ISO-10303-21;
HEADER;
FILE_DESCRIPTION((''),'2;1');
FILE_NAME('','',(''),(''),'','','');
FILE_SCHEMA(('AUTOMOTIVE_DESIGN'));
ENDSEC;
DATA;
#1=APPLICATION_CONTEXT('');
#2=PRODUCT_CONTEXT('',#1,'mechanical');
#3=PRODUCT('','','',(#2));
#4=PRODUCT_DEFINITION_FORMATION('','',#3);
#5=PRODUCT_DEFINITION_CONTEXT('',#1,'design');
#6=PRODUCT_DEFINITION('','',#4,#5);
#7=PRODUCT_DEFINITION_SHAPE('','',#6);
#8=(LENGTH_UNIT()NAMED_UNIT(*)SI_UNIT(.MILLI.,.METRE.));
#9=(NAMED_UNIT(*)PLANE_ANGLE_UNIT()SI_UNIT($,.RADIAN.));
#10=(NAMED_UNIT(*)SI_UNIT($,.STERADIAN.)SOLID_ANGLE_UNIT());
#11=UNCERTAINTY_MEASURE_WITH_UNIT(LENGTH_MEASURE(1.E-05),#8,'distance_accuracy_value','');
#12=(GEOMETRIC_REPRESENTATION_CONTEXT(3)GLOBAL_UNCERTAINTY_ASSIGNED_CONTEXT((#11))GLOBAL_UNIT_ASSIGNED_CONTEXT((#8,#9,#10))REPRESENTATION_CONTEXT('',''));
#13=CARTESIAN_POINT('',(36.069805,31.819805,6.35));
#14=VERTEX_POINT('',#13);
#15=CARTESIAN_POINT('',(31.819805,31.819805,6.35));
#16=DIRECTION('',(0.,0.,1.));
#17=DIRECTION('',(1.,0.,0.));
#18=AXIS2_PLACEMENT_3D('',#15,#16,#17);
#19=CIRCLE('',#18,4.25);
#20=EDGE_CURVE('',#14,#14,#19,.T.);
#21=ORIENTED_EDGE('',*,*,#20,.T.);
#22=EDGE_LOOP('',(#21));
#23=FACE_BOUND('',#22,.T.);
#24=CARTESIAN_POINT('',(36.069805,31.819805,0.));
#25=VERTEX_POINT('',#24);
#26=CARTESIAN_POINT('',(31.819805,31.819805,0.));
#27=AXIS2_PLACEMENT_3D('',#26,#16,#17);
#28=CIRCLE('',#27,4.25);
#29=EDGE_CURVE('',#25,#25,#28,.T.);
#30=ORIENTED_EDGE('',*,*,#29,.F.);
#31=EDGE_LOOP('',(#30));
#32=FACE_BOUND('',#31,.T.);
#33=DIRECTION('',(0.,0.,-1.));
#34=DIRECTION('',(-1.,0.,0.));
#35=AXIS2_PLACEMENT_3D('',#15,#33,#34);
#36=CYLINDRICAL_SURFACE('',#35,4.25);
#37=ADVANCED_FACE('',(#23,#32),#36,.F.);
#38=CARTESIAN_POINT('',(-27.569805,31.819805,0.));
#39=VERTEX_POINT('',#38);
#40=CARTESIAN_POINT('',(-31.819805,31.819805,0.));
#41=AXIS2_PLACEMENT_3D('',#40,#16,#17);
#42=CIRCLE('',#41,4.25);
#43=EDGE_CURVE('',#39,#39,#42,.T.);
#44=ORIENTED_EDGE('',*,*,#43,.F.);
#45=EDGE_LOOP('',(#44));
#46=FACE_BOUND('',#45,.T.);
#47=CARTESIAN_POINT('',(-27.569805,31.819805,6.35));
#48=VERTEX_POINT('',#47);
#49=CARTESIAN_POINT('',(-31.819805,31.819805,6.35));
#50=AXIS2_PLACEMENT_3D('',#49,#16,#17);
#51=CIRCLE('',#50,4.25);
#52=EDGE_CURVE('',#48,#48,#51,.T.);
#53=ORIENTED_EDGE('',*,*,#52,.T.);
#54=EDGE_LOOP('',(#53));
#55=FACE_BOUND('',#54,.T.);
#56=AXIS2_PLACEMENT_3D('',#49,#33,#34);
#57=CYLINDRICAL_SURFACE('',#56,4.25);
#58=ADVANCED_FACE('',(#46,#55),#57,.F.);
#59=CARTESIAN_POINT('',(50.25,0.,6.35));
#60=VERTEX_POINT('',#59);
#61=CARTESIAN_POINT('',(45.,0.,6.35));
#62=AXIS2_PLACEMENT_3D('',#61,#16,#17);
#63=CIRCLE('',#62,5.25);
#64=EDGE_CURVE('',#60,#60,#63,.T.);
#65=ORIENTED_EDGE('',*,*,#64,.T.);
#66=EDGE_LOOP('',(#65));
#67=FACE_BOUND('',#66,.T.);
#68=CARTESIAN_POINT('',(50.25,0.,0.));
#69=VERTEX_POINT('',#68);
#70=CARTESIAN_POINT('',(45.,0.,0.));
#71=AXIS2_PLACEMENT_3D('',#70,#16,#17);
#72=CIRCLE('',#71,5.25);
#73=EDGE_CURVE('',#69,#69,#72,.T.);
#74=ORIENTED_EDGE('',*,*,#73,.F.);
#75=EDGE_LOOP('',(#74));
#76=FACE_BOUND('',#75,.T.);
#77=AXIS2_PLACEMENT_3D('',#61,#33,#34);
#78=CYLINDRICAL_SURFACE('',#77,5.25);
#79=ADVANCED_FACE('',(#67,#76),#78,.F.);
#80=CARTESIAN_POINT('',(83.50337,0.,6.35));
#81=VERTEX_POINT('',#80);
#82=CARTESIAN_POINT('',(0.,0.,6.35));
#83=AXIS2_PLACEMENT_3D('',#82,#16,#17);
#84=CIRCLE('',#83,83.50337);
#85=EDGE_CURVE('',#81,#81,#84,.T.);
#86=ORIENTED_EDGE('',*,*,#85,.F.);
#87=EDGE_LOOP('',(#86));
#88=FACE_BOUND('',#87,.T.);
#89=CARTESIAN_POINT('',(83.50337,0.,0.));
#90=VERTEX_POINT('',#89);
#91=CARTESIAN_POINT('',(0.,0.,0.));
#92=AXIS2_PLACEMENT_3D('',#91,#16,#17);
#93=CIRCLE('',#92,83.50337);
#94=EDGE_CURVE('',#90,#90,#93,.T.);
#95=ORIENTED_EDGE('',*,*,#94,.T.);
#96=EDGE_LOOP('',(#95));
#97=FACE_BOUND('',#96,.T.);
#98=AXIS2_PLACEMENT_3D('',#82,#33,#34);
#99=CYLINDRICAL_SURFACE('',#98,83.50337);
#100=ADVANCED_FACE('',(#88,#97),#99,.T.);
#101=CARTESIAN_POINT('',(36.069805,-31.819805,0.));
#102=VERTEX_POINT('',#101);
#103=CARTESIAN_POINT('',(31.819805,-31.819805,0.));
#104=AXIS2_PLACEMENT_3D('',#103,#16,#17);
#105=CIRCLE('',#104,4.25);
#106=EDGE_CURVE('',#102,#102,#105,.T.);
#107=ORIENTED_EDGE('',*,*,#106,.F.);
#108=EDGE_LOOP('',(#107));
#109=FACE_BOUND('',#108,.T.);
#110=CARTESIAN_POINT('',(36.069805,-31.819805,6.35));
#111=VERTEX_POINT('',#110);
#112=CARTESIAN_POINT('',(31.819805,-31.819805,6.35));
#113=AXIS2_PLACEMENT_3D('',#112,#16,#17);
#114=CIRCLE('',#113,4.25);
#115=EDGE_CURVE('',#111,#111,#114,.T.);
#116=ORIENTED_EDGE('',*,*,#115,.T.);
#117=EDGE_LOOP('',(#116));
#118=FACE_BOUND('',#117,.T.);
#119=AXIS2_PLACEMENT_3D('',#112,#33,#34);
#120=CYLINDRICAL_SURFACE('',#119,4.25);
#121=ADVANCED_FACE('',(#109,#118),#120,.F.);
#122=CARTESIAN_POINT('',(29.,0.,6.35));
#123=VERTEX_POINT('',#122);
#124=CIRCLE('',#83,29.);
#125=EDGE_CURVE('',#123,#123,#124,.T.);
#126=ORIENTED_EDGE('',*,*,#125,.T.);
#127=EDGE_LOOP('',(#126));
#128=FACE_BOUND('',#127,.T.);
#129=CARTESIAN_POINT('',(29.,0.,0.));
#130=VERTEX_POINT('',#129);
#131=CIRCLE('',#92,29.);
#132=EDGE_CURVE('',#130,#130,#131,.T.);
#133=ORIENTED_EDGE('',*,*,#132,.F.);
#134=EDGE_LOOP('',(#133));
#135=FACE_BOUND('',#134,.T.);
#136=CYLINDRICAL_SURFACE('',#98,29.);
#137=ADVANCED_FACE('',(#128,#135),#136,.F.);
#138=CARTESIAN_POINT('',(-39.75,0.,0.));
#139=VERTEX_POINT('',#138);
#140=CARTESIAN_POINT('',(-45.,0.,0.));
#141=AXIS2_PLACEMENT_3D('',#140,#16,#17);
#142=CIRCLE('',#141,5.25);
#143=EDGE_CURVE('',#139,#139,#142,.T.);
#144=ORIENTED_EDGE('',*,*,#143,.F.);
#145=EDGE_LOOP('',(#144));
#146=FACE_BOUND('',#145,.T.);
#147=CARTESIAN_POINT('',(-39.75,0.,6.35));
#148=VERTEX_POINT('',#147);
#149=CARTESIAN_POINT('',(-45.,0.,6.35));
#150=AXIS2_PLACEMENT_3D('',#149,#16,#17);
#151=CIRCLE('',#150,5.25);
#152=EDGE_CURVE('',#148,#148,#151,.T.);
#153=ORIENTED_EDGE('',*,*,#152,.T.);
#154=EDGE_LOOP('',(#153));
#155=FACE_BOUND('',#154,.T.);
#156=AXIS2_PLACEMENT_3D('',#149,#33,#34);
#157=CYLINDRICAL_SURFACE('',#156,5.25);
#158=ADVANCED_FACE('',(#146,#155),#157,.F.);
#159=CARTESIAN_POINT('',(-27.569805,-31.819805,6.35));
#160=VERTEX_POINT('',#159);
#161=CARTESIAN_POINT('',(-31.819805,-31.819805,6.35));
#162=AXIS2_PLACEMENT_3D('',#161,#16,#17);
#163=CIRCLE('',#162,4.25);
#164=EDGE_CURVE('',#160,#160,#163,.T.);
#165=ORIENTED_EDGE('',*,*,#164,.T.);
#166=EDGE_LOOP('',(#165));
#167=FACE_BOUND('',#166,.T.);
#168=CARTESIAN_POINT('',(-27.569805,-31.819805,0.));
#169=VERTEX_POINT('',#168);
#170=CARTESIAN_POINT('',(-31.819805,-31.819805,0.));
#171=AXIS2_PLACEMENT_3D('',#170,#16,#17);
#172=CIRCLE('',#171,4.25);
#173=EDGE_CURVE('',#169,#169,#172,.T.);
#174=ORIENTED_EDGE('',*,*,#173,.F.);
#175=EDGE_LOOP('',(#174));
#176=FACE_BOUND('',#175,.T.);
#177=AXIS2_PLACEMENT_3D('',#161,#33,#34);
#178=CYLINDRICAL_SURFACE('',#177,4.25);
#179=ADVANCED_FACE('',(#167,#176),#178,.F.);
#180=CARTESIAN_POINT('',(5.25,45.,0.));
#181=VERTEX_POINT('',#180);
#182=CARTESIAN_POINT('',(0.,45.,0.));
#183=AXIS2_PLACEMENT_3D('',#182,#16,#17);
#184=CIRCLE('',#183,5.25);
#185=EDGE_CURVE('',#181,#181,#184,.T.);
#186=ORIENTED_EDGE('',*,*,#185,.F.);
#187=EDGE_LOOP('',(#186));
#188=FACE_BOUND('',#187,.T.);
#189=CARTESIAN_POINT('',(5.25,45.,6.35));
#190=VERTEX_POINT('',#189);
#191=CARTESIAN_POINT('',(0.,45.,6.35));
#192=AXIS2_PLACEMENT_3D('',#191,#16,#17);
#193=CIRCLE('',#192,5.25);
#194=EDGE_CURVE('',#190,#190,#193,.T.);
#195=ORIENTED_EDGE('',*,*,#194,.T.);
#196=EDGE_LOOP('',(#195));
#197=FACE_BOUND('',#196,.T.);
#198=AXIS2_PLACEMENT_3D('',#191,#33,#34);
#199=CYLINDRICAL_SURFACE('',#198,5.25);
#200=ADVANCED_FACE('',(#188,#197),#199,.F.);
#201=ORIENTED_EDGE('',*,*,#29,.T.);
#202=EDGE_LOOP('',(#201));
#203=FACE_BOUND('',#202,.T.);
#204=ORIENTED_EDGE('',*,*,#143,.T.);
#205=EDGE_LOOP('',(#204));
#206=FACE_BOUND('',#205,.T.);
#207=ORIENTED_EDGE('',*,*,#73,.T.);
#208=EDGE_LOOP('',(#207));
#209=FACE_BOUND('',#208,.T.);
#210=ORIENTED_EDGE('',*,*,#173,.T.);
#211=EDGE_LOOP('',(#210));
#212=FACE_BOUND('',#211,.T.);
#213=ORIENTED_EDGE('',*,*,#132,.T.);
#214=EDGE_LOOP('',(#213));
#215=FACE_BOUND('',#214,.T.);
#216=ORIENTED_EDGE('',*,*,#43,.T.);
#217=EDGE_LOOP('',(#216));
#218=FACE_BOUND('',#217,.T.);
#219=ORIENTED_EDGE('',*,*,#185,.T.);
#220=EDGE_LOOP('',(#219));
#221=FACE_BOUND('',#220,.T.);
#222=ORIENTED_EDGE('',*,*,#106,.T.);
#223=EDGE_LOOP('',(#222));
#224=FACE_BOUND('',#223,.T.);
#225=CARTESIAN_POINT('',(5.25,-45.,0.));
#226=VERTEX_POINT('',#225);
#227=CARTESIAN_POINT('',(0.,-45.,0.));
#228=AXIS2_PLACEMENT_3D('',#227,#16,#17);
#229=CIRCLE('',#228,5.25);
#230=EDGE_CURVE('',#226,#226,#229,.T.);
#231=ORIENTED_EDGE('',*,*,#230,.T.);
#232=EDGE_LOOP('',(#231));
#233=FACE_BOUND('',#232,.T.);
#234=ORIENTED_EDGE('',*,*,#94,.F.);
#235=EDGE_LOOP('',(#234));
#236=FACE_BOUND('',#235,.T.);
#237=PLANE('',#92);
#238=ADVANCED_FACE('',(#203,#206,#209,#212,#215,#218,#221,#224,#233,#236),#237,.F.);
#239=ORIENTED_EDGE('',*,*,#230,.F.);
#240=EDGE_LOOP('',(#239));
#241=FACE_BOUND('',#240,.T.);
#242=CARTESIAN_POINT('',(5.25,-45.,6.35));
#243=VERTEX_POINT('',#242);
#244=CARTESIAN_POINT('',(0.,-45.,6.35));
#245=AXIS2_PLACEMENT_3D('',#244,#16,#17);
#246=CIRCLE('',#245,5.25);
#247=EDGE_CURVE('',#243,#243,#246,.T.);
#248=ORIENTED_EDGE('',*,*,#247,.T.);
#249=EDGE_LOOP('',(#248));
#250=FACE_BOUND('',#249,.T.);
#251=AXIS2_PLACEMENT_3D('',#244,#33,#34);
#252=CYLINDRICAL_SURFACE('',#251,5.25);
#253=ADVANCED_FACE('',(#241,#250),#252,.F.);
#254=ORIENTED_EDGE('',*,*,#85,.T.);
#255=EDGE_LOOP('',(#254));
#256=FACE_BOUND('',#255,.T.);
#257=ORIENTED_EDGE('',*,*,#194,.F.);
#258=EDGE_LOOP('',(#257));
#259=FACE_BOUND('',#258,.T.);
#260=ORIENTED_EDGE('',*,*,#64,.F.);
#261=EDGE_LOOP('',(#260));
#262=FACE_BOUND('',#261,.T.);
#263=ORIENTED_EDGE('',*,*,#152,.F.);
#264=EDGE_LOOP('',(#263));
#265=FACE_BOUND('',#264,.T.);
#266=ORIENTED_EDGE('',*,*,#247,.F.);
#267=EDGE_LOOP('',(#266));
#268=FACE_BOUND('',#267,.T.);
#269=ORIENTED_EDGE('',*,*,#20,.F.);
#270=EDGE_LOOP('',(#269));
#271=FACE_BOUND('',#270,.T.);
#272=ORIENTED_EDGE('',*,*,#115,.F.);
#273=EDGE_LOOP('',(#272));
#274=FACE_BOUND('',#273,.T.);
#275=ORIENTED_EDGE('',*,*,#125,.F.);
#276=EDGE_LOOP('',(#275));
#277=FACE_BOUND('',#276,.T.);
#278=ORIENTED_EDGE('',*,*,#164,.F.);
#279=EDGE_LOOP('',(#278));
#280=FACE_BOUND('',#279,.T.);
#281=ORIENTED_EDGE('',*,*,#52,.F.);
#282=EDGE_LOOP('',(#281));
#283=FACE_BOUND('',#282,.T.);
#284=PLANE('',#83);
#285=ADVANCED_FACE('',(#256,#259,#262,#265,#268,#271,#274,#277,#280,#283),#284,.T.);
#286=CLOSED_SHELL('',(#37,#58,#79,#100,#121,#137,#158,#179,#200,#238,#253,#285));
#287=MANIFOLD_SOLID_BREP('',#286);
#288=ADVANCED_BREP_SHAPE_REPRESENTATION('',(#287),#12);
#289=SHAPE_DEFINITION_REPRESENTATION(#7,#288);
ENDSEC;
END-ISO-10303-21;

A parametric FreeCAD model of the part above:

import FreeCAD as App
import Part
import Sketcher

V = App.Vector
Q = App.Units.Quantity

doc = App.newDocument("Part")
body = doc.addObject("PartDesign::Body", "Body")

# Sketch on XY plane
sketch1 = body.newObject("Sketcher::SketchObject", "Sketch")
sketch1.AttachmentSupport = (doc.getObject("XY_Plane"), [""])
sketch1.MapMode = "FlatFace"
sketch1.addGeometry(Part.Circle(V(0, 0, 0), V(0, 0, 1), 83.5), False)
sketch1.addGeometry(Part.Circle(V(-31.8, -31.8, 0), V(0, 0, 1), 4.2), False)
sketch1.addGeometry(Part.Circle(V(0, -45, 0), V(0, 0, 1), 5.2), False)
sketch1.addGeometry(Part.Circle(V(31.8, -31.8, 0), V(0, 0, 1), 4.2), False)
sketch1.addGeometry(Part.Circle(V(-45, 0, 0), V(0, 0, 1), 5.2), False)
sketch1.addGeometry(Part.Circle(V(-31.8, 31.8, 0), V(0, 0, 1), 4.2), False)
sketch1.addGeometry(Part.Circle(V(0, 0, 0), V(0, 0, 1), 29), False)
sketch1.addGeometry(Part.Circle(V(45, 0, 0), V(0, 0, 1), 5.2), False)
sketch1.addGeometry(Part.Circle(V(0, 45, 0), V(0, 0, 1), 5.2), False)
sketch1.addGeometry(Part.Circle(V(31.8, 31.8, 0), V(0, 0, 1), 4.2), False)
sketch1.addConstraint(Sketcher.Constraint("Coincident", 0, 3, -1, 1))
sketch1.addConstraint(Sketcher.Constraint("Coincident", 6, 3, -1, 1))
sketch1.addConstraint(Sketcher.Constraint("Equal", 1, 3))
sketch1.addConstraint(Sketcher.Constraint("Equal", 2, 4))
sketch1.addConstraint(Sketcher.Constraint("Equal", 3, 5))
sketch1.addConstraint(Sketcher.Constraint("Equal", 4, 7))
sketch1.addConstraint(Sketcher.Constraint("Equal", 7, 8))
sketch1.addConstraint(Sketcher.Constraint("Equal", 5, 9))
sketch1.addConstraint(Sketcher.Constraint("Symmetric", 3, 3, 5, 3, -1, 1))
sketch1.addConstraint(Sketcher.Constraint("Symmetric", 4, 3, 7, 3, -1, 1))
sketch1.addConstraint(Sketcher.Constraint("Symmetric", 2, 3, 8, 3, -1, 1))
sketch1.addConstraint(Sketcher.Constraint("Symmetric", 1, 3, 9, 3, -1, 1))
sketch1.addConstraint(Sketcher.Constraint("Symmetric", 1, 3, 3, 3, -2))
sketch1.addConstraint(Sketcher.Constraint("PointOnObject", 2, 3, -2))
sketch1.addConstraint(Sketcher.Constraint("PointOnObject", 4, 3, -1))
sketch1.addConstraint(Sketcher.Constraint("Diameter", 6, Q("58 mm")))
sketch1.addConstraint(Sketcher.Constraint("Diameter", 1, Q("8.5 mm")))
sketch1.addConstraint(Sketcher.Constraint("Diameter", 2, Q("10.5 mm")))
sketch1.addConstraint(Sketcher.Constraint("DistanceY", 2, 3, -1, 1, Q("45 mm")))
sketch1.addConstraint(Sketcher.Constraint("DistanceX", 4, 3, -1, 1, Q("45 mm")))
sketch1.addConstraint(Sketcher.Constraint("Diameter", 0, Q("167.006741 mm")))
sketch1.addConstraint(Sketcher.Constraint("DistanceX", 1, 3, 3, 3, Q("63.63961 mm")))
sketch1.addConstraint(Sketcher.Constraint("DistanceY", 1, 3, 5, 3, Q("63.63961 mm")))
pad1 = body.newObject("PartDesign::Pad", "Pad")
pad1.Profile = sketch1
pad1.Length = 6.35

doc.recompute()
